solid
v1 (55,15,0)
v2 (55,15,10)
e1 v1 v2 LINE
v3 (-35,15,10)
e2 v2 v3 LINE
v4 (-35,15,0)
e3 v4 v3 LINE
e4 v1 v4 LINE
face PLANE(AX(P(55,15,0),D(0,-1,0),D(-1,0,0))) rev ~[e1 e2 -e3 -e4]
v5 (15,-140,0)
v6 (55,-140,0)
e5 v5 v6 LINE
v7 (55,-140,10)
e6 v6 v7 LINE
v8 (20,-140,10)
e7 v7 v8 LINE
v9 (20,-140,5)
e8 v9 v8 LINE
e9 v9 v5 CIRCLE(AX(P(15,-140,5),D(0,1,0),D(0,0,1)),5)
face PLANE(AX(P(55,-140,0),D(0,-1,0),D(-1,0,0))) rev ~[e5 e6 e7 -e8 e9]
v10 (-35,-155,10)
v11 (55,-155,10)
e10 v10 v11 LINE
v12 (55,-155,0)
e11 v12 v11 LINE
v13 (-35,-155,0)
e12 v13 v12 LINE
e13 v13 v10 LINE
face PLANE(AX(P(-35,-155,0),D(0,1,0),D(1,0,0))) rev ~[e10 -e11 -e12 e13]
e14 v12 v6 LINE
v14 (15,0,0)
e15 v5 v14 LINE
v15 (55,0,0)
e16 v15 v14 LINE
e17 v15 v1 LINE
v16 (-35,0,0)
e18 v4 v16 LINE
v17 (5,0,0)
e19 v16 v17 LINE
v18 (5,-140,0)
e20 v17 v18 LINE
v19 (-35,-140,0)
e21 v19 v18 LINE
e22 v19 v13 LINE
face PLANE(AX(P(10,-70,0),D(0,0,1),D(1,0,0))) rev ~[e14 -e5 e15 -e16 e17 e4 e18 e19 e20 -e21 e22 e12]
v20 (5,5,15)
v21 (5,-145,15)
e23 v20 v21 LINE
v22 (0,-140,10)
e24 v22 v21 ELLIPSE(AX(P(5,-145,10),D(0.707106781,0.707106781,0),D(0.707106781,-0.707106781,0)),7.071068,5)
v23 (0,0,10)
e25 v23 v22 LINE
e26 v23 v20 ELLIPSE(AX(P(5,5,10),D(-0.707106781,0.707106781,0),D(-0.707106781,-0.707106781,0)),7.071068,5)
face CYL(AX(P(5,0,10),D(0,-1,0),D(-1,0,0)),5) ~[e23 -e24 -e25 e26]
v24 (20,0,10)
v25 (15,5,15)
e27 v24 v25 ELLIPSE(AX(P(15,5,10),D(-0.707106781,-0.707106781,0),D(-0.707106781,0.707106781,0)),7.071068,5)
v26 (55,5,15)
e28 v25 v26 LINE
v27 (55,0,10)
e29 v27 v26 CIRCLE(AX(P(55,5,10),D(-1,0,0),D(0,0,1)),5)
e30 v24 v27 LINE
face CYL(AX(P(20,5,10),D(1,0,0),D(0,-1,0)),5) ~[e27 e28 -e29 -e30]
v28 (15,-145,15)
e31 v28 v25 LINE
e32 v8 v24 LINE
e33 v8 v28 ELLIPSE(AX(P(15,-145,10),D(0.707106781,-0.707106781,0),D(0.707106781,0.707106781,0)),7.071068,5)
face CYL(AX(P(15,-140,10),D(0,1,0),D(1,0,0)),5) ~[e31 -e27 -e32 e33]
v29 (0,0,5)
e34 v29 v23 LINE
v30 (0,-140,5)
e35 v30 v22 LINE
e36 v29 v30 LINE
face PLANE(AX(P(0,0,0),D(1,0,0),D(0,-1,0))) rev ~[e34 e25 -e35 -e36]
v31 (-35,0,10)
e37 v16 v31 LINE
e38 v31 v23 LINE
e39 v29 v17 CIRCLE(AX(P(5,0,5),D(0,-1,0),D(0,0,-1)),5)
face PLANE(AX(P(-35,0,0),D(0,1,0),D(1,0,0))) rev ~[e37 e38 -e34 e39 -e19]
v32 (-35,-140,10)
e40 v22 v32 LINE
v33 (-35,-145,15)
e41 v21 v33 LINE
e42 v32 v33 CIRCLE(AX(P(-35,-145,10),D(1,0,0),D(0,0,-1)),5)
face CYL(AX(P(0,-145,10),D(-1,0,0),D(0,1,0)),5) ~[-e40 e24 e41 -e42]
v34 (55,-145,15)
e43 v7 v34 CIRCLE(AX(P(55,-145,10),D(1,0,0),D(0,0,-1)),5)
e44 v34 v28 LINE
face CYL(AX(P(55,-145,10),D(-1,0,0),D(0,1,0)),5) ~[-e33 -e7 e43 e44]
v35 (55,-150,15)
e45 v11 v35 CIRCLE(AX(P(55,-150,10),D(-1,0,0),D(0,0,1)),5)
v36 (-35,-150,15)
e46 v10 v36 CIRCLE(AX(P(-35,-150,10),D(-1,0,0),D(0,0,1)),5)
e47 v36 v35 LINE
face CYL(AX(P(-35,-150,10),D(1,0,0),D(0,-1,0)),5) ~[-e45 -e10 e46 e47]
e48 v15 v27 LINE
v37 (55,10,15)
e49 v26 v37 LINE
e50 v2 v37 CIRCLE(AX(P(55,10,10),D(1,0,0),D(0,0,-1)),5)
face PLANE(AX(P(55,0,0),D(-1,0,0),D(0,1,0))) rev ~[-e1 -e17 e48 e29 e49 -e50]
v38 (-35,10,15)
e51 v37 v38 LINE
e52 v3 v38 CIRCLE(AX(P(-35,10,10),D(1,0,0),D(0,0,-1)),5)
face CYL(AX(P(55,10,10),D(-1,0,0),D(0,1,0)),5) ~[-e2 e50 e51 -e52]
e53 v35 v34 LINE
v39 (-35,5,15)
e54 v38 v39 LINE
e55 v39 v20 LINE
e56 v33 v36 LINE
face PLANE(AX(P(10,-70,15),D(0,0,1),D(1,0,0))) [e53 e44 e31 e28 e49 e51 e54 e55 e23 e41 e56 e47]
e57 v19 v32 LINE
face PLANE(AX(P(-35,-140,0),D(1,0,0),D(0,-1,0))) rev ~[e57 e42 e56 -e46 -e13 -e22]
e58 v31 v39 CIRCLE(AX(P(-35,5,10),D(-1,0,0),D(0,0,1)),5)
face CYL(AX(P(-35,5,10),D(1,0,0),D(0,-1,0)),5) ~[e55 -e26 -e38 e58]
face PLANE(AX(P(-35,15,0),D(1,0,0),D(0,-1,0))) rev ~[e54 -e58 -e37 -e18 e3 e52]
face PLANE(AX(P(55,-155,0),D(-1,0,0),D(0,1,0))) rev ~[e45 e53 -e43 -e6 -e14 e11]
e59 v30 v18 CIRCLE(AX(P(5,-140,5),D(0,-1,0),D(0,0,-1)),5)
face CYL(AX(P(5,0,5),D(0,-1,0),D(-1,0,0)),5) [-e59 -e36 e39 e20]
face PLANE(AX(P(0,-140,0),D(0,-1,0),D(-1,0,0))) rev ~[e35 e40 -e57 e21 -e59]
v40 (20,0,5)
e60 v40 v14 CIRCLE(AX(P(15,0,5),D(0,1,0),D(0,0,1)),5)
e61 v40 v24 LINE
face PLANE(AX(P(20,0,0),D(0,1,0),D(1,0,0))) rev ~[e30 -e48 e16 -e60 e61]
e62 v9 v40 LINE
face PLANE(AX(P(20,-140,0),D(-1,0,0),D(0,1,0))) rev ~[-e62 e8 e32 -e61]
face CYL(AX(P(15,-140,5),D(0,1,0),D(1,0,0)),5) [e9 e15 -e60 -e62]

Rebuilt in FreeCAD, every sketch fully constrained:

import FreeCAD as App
import Part
import Sketcher

V = App.Vector
Q = App.Units.Quantity


def edges_at(feature, points):
    """Names of the edges that pass closest to the given points."""
    edges = feature.Shape.Edges
    near = lambda p: min(range(len(edges)), key=lambda i: edges[i].distToShape(Part.Vertex(*p))[0])
    return sorted({f"Edge{near(p) + 1}" for p in points})

doc = App.newDocument("Part")
params = doc.addObject("Spreadsheet::Sheet", "Params")
for row, (alias, value) in enumerate([
    ("sketch1_width", "35 mm"),
    ("sketch1_width2", "90 mm"),
    ("sketch1_height", "140 mm"),
    ("sketch1_height2", "15 mm"),
    ("pad1_length", "15 mm"),
    ("fillet_radius", "5 mm"),
], start=1):
    params.set(f"A{row}", alias)
    params.set(f"B{row}", "=" + value)
    params.setAlias(f"B{row}", alias)

body = doc.addObject("PartDesign::Body", "Body")

# Sketch on XY plane
sketch1 = body.newObject("Sketcher::SketchObject", "Sketch")
sketch1.AttachmentSupport = (doc.getObject("XY_Plane"), [""])
sketch1.MapMode = "FlatFace"
sketch1.addGeometry([
    Part.LineSegment(V(-35, 0, 0), V(0, 0, 0)),  # 0
    Part.LineSegment(V(0, 0, 0), V(0, -140, 0)),  # 1
    Part.LineSegment(V(0, -140, 0), V(-35, -140, 0)),  # 2
    Part.LineSegment(V(-35, -140, 0), V(-35, -155, 0)),  # 3
    Part.LineSegment(V(-35, -155, 0), V(55, -155, 0)),  # 4
    Part.LineSegment(V(55, -155, 0), V(55, -140, 0)),  # 5
    Part.LineSegment(V(55, -140, 0), V(20, -140, 0)),  # 6
    Part.LineSegment(V(20, -140, 0), V(20, 0, 0)),  # 7
    Part.LineSegment(V(20, 0, 0), V(55, 0, 0)),  # 8
    Part.LineSegment(V(55, 0, 0), V(55, 15, 0)),  # 9
    Part.LineSegment(V(55, 15, 0), V(-35, 15, 0)),  # 10
    Part.LineSegment(V(-35, 15, 0), V(-35, 0, 0)),  # 11
], False)
sketch1.addConstraint([
    Sketcher.Constraint("Coincident", 0, 2, 1, 1),
    Sketcher.Constraint("Coincident", 1, 2, 2, 1),
    Sketcher.Constraint("Coincident", 2, 2, 3, 1),
    Sketcher.Constraint("Coincident", 3, 2, 4, 1),
    Sketcher.Constraint("Coincident", 4, 2, 5, 1),
    Sketcher.Constraint("Coincident", 5, 2, 6, 1),
    Sketcher.Constraint("Coincident", 6, 2, 7, 1),
    Sketcher.Constraint("Coincident", 7, 2, 8, 1),
    Sketcher.Constraint("Coincident", 8, 2, 9, 1),
    Sketcher.Constraint("Coincident", 9, 2, 10, 1),
    Sketcher.Constraint("Coincident", 10, 2, 11, 1),
    Sketcher.Constraint("Coincident", 11, 2, 0, 1),
    Sketcher.Constraint("Horizontal", 0),
    Sketcher.Constraint("Vertical", 1),
    Sketcher.Constraint("Horizontal", 2),
    Sketcher.Constraint("Vertical", 3),
    Sketcher.Constraint("Horizontal", 4),
    Sketcher.Constraint("Vertical", 5),
    Sketcher.Constraint("Horizontal", 6),
    Sketcher.Constraint("Vertical", 7),
    Sketcher.Constraint("Horizontal", 8),
    Sketcher.Constraint("Vertical", 9),
    Sketcher.Constraint("Horizontal", 10),
    Sketcher.Constraint("Vertical", 11),
    Sketcher.Constraint("Coincident", 0, 2, -1, 1),
    Sketcher.Constraint("PointOnObject", 7, 2, -1),
    Sketcher.Constraint("Horizontal", 2, 2, 5, 2),
    Sketcher.Constraint("Vertical", 5, 2, 8, 2),
    Sketcher.Constraint("Vertical", 3, 2, 10, 2),
    Sketcher.Constraint("Equal", 2, 6),
    Sketcher.Constraint("Equal", 5, 9),
    Sketcher.Constraint("DistanceX", 0, 1, 0, 2, Q("35 mm")),
    Sketcher.Constraint("DistanceX", 4, 1, 4, 2, Q("90 mm")),
    Sketcher.Constraint("DistanceY", 1, 2, 1, 1, Q("140 mm")),
    Sketcher.Constraint("DistanceY", 3, 2, 3, 1, Q("15 mm")),
])
sketch1.setExpression("Constraints[31]", "Params.sketch1_width")
sketch1.setExpression("Constraints[32]", "Params.sketch1_width2")
sketch1.setExpression("Constraints[33]", "Params.sketch1_height")
sketch1.setExpression("Constraints[34]", "Params.sketch1_height2")
pad1 = body.newObject("PartDesign::Pad", "Pad")
pad1.Profile = sketch1
pad1.setExpression("Length", "Params.pad1_length")
doc.recompute()

fillet = body.newObject("PartDesign::Fillet", "Fillet")
fillet.Base = (pad1, edges_at(pad1, [
    (10, 15, 15),
    (10, -155, 15),
    (0, -70, 15),
    (20, -70, 15),
    (0, -70, 0),
    (20, -70, 0),
    (-17.5, 0, 15),
    (37.5, 0, 15),
    (-17.5, -140, 15),
    (37.5, -140, 15),
]))
fillet.setExpression("Radius", "Params.fillet_radius")

doc.recompute()
